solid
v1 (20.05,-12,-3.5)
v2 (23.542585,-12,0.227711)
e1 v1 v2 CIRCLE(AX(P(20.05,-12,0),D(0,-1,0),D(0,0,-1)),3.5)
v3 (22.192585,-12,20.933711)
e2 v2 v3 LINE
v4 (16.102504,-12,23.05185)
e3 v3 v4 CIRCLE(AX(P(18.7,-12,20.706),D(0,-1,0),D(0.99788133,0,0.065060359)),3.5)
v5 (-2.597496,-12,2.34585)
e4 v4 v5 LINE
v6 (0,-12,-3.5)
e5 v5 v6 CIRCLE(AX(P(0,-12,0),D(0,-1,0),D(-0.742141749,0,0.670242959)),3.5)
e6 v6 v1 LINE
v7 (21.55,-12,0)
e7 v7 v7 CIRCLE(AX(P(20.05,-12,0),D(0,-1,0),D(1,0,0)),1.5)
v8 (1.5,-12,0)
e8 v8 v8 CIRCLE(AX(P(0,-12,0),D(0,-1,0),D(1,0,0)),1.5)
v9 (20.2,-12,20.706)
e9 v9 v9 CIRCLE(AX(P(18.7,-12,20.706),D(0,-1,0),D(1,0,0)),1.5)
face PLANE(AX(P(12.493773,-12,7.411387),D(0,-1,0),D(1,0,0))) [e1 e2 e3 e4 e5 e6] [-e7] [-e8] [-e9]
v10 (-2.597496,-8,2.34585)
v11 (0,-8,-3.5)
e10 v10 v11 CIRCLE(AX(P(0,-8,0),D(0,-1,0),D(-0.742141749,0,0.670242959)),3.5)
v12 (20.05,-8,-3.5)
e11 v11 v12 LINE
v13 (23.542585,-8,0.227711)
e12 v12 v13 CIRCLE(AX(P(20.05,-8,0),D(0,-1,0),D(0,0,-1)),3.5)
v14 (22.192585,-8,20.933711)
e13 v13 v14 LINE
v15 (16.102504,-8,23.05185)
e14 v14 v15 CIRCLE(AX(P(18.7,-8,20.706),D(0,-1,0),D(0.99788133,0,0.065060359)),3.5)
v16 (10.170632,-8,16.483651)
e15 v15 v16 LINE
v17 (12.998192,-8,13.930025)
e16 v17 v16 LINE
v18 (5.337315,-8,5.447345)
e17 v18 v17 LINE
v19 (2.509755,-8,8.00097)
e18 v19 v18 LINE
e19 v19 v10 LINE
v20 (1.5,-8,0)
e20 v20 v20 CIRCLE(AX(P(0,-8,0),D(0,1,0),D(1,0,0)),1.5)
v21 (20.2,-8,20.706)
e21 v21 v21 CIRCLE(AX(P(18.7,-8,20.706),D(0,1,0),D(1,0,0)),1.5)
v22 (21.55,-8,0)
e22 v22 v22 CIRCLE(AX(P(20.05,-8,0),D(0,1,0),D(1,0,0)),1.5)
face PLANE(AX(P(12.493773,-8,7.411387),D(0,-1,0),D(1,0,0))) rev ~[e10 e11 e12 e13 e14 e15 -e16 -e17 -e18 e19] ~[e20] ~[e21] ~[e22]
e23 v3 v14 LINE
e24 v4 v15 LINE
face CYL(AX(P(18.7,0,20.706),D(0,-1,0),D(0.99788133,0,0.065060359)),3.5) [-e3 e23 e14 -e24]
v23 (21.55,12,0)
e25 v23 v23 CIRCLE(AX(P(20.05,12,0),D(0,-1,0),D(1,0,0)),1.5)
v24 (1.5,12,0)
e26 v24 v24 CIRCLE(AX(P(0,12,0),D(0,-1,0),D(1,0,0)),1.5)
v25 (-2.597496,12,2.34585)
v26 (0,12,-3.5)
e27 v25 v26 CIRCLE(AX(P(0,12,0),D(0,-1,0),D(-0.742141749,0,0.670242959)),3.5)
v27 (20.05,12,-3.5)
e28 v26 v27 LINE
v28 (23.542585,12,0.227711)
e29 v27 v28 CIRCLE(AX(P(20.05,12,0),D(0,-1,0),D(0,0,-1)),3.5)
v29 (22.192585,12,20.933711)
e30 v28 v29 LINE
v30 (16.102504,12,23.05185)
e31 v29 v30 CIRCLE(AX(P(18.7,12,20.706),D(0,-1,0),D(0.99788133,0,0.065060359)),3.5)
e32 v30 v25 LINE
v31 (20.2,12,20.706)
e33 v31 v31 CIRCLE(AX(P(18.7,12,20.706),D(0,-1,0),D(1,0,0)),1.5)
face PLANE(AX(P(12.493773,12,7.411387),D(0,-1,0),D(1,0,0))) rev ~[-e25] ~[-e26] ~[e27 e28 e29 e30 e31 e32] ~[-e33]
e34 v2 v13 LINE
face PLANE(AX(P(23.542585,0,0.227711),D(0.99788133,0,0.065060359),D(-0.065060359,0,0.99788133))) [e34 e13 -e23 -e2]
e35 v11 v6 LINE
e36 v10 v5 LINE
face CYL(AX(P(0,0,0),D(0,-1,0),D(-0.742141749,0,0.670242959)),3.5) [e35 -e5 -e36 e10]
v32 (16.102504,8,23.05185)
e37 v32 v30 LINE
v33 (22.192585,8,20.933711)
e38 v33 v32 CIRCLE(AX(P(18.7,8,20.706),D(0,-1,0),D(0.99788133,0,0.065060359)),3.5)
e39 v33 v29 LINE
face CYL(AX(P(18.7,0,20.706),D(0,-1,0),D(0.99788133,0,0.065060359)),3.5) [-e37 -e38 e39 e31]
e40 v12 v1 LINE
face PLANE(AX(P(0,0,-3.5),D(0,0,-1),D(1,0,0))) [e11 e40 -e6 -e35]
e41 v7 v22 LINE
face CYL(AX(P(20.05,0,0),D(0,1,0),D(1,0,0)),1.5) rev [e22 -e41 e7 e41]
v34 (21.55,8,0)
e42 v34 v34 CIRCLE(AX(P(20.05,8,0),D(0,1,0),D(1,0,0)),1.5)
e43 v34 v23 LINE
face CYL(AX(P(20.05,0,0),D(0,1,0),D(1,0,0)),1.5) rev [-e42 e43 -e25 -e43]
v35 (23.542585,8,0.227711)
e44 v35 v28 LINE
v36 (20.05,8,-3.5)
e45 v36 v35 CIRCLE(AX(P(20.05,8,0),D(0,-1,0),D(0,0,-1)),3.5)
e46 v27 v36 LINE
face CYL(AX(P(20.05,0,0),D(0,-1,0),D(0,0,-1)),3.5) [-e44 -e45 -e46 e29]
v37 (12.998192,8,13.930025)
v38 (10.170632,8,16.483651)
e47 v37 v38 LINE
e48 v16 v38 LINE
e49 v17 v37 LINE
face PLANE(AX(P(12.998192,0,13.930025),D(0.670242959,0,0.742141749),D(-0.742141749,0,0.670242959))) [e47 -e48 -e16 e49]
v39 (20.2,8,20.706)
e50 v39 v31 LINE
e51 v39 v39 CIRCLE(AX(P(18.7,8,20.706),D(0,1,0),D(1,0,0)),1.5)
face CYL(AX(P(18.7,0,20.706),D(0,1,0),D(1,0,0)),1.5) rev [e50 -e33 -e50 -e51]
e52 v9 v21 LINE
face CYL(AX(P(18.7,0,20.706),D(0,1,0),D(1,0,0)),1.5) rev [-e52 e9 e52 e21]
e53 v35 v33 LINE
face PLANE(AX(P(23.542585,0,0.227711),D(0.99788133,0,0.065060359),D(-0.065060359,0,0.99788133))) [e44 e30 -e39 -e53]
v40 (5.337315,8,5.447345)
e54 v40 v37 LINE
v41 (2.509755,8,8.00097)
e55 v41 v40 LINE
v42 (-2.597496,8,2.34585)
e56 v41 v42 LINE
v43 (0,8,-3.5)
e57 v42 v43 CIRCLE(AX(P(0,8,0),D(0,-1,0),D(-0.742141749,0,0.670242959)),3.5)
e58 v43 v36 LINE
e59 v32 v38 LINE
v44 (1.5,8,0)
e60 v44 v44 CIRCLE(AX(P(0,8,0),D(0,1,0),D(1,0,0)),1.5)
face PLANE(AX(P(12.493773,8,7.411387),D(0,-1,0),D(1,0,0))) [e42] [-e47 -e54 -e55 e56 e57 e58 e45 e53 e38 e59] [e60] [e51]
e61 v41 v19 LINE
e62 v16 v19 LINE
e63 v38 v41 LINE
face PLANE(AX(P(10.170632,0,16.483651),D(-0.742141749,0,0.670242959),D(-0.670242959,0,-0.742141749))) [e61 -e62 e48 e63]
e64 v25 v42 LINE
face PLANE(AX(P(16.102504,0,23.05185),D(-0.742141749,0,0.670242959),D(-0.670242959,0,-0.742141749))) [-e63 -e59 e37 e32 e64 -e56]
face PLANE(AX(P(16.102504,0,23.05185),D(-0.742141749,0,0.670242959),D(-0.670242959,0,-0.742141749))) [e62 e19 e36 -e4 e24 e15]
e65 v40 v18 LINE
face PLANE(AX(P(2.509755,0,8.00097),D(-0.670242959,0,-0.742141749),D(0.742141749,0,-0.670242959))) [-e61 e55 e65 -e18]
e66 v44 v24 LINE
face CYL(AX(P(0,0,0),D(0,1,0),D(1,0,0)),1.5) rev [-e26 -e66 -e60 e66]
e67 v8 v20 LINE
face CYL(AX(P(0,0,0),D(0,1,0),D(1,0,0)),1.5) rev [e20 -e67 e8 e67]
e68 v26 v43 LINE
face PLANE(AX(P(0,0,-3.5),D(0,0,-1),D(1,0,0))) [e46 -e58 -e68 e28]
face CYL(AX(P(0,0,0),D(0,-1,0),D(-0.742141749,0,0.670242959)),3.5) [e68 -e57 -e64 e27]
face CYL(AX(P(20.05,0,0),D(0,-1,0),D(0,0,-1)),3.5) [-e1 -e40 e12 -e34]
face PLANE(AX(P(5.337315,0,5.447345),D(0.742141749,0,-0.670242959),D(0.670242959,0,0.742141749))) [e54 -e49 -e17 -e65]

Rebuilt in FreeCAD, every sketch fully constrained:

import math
import FreeCAD as App
import Part
import Sketcher
Q = App.Units.Quantity

doc = App.newDocument("Part")
body = doc.addObject("PartDesign::Body", "Body")
body.AllowCompound = True

# Sketch on XZ plane
sketch1 = doc.addObject("Sketcher::SketchObject", "Sketch")
body.addObject(sketch1)
sketch1.AttachmentSupport = (doc.XZ_Plane, [""])
sketch1.MapMode = "FlatFace"
sketch1.addGeometry([
    Part.LineSegment(App.Vector(16.102504, 23.05185, 0), App.Vector(-2.597496, 2.34585, 0)),  # 0
    Part.ArcOfCircle(Part.Circle(App.Vector(0, 0, 0), App.Vector(0, 0, 1), 3.5), math.radians(137.914181), math.radians(270)),  # 1
    Part.LineSegment(App.Vector(0, -3.5, 0), App.Vector(20.05, -3.5, 0)),  # 2
    Part.ArcOfCircle(Part.Circle(App.Vector(20.05, 0, 0), App.Vector(0, 0, 1), 3.5), math.radians(-90), math.radians(3.730319)),  # 3
    Part.LineSegment(App.Vector(23.542585, 0.227711, 0), App.Vector(22.192585, 20.933711, 0)),  # 4
    Part.ArcOfCircle(Part.Circle(App.Vector(18.7, 20.706, 0), App.Vector(0, 0, 1), 3.5), math.radians(3.730319), math.radians(137.914181)),  # 5
    Part.Circle(App.Vector(0, 0, 0), App.Vector(0, 0, 1), 1.5),  # 6
    Part.Circle(App.Vector(20.05, 0, 0), App.Vector(0, 0, 1), 1.5),  # 7
    Part.Circle(App.Vector(18.7, 20.706, 0), App.Vector(0, 0, 1), 1.5),  # 8
], False)
sketch1.addConstraint([
    Sketcher.Constraint("Tangent", 0, 2, 1, 1),
    Sketcher.Constraint("Tangent", 1, 2, 2, 1),
    Sketcher.Constraint("Tangent", 2, 2, 3, 1),
    Sketcher.Constraint("Tangent", 3, 2, 4, 1),
    Sketcher.Constraint("Tangent", 4, 2, 5, 1),
    Sketcher.Constraint("Tangent", 5, 2, 0, 1),
    Sketcher.Constraint("Horizontal", 2),
    Sketcher.Constraint("Coincident", 1, 3, -1, 1),
    Sketcher.Constraint("Coincident", 6, 3, -1, 1),
    Sketcher.Constraint("Coincident", 7, 3, 3, 3),
    Sketcher.Constraint("Coincident", 8, 3, 5, 3),
    Sketcher.Constraint("Equal", 1, 3),
    Sketcher.Constraint("Equal", 3, 5),
    Sketcher.Constraint("Equal", 6, 7),
    Sketcher.Constraint("Equal", 7, 8),
    Sketcher.Constraint("Diameter", 6, Q("3 mm")),
    Sketcher.Constraint("Radius", 1, Q("3.5 mm")),
    Sketcher.Constraint("DistanceX", 2, 1, 2, 2, Q("20.05 mm")),
    Sketcher.Constraint("DistanceX", -1, 1, 5, 3, Q("18.7 mm")),
    Sketcher.Constraint("DistanceY", -1, 1, 5, 3, Q("20.706 mm")),
])
pad1 = doc.addObject("PartDesign::Pad", "Pad")
body.addObject(pad1)
pad1.Profile = sketch1
pad1.Length = 24
pad1.Midplane = True

# Sketch on XZ plane
sketch2 = doc.addObject("Sketcher::SketchObject", "Sketch001")
body.addObject(sketch2)
sketch2.AttachmentSupport = (doc.XZ_Plane, [""])
sketch2.MapMode = "FlatFace"
sketch2.addGeometry([
    Part.ArcOfCircle(Part.Circle(App.Vector(0, 0, 0), App.Vector(0, 0, 1), 3.5), math.radians(137.914181), math.radians(270)),  # 0
    Part.LineSegment(App.Vector(0, -3.5, 0), App.Vector(20.05, -3.5, 0)),  # 1
    Part.ArcOfCircle(Part.Circle(App.Vector(20.05, 0, 0), App.Vector(0, 0, 1), 3.5), math.radians(-90), math.radians(3.730319)),  # 2
    Part.LineSegment(App.Vector(23.542585, 0.227711, 0), App.Vector(22.192585, 20.933711, 0)),  # 3
    Part.ArcOfCircle(Part.Circle(App.Vector(18.7, 20.706, 0), App.Vector(0, 0, 1), 3.5), math.radians(3.730319), math.radians(137.914181)),  # 4
    Part.LineSegment(App.Vector(16.102504, 23.05185, 0), App.Vector(-2.597496, 2.34585, 0)),  # 5
], False)
sketch2.addConstraint([
    Sketcher.Constraint("Tangent", 0, 2, 1, 1),
    Sketcher.Constraint("Tangent", 1, 2, 2, 1),
    Sketcher.Constraint("Tangent", 2, 2, 3, 1),
    Sketcher.Constraint("Tangent", 3, 2, 4, 1),
    Sketcher.Constraint("Tangent", 4, 2, 5, 1),
    Sketcher.Constraint("Tangent", 5, 2, 0, 1),
    Sketcher.Constraint("Horizontal", 1),
    Sketcher.Constraint("Coincident", 0, 3, -1, 1),
    Sketcher.Constraint("Equal", 0, 2),
    Sketcher.Constraint("Equal", 2, 4),
    Sketcher.Constraint("Radius", 0, Q("3.5 mm")),
    Sketcher.Constraint("DistanceX", 1, 1, 1, 2, Q("20.05 mm")),
    Sketcher.Constraint("DistanceX", -1, 1, 4, 3, Q("18.7 mm")),
    Sketcher.Constraint("DistanceY", -1, 1, 4, 3, Q("20.706 mm")),
])
pocket1 = doc.addObject("PartDesign::Pocket", "Pocket")
body.addObject(pocket1)
pocket1.Profile = sketch2
pocket1.Length = 16
pocket1.Midplane = True

# Sketch on XZ plane
sketch3 = doc.addObject("Sketcher::SketchObject", "Sketch002")
body.addObject(sketch3)
sketch3.AttachmentSupport = (doc.XZ_Plane, [""])
sketch3.MapMode = "FlatFace"
sketch3.addGeometry([
    Part.LineSegment(App.Vector(10.170632, 16.483651, 0), App.Vector(2.509755, 8.00097, 0)),
    Part.LineSegment(App.Vector(2.509755, 8.00097, 0), App.Vector(5.337315, 5.447345, 0)),
    Part.LineSegment(App.Vector(5.337315, 5.447345, 0), App.Vector(12.998192, 13.930025, 0)),
    Part.LineSegment(App.Vector(12.998192, 13.930025, 0), App.Vector(10.170632, 16.483651, 0)),
], False)
sketch3.addConstraint([
    Sketcher.Constraint("Coincident", 0, 2, 1, 1),
    Sketcher.Constraint("Coincident", 1, 2, 2, 1),
    Sketcher.Constraint("Coincident", 2, 2, 3, 1),
    Sketcher.Constraint("Coincident", 3, 2, 0, 1),
    Sketcher.Constraint("Perpendicular", 0, 1),
    Sketcher.Constraint("Perpendicular", 1, 2),
    Sketcher.Constraint("Perpendicular", 2, 3),
    Sketcher.Constraint("Distance", 0, Q("11.43 mm")),
    Sketcher.Constraint("Distance", 1, Q("3.81 mm")),
    Sketcher.Constraint("DistanceY", -1, 1, 0, 2, Q("8.00097 mm")),
    Sketcher.Constraint("DistanceY", -1, 1, 3, 2, Q("16.483651 mm")),
    Sketcher.Constraint("DistanceX", -1, 1, 0, 2, Q("2.509755 mm")),
])
pad2 = doc.addObject("PartDesign::Pad", "Pad001")
body.addObject(pad2)
pad2.Profile = sketch3
pad2.Length = 16
pad2.Midplane = True

doc.recompute()
